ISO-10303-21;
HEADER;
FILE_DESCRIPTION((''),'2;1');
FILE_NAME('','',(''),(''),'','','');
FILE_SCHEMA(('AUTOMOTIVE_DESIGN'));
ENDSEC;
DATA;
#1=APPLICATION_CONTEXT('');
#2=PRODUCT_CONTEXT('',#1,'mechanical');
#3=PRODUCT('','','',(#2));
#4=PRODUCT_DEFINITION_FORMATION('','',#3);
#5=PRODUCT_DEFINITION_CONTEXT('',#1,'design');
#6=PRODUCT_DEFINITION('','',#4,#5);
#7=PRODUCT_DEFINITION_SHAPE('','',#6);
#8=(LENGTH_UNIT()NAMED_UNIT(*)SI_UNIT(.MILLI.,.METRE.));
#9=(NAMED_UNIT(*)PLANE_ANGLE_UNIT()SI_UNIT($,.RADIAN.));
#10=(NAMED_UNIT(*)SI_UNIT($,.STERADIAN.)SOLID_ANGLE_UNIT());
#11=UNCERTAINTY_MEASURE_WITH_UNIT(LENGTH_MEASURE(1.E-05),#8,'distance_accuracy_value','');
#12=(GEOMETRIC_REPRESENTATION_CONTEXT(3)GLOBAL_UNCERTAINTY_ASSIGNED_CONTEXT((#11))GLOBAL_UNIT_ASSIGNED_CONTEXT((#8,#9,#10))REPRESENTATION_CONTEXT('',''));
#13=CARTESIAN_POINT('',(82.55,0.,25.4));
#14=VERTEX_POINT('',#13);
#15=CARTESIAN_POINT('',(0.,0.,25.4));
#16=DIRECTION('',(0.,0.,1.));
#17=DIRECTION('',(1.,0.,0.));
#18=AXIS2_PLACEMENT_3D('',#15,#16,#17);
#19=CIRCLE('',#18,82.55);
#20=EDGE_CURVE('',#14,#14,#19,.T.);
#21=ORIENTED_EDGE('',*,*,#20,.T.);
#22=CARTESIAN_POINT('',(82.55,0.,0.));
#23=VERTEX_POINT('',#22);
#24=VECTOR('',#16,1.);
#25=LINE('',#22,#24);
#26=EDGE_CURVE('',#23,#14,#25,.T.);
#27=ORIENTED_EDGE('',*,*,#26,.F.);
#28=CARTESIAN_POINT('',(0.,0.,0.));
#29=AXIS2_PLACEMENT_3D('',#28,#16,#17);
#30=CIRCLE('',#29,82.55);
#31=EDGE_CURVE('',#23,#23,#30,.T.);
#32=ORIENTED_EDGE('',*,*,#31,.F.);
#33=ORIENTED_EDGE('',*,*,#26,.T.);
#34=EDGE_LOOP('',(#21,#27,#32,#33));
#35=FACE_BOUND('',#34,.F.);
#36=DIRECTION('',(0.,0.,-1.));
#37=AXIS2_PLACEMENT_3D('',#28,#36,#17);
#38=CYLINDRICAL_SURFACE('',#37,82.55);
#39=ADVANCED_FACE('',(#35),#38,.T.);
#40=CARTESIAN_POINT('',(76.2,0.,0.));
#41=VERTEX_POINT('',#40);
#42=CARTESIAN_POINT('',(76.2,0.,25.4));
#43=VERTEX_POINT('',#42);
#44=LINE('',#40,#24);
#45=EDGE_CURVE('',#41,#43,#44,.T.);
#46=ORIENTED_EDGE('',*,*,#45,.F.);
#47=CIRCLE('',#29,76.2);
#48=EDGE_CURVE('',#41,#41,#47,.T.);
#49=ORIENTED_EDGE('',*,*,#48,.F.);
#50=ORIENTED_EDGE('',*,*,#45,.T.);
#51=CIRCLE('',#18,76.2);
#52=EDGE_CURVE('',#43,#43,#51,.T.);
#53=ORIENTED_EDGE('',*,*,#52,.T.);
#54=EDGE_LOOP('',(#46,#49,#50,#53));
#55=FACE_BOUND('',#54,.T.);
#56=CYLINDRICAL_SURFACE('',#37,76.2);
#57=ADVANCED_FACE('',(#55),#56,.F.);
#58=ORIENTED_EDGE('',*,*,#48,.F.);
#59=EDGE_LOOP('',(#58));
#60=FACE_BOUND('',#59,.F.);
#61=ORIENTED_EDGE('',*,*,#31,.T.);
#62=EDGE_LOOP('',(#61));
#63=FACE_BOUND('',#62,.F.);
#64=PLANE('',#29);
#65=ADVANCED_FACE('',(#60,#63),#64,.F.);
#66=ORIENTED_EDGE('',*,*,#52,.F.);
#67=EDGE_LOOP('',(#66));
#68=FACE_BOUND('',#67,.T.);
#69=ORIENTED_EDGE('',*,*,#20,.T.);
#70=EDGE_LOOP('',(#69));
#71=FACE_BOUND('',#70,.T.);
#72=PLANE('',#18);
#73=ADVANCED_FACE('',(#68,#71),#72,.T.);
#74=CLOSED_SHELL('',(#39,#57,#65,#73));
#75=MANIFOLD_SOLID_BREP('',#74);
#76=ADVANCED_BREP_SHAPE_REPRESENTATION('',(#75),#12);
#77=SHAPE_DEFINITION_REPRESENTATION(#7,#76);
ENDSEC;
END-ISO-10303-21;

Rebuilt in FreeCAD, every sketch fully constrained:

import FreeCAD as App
import Part
import Sketcher

V = App.Vector
Q = App.Units.Quantity

doc = App.newDocument("Part")
body = doc.addObject("PartDesign::Body", "Body")

# Sketch on XY plane
sketch1 = doc.addObject("Sketcher::SketchObject", "Sketch")
body.addObject(sketch1)
sketch1.AttachmentSupport = (doc.XY_Plane, [""])
sketch1.MapMode = "FlatFace"
sketch1.addGeometry([
    Part.Circle(V(0, 0, 0), V(0, 0, 1), 83),
    Part.Circle(V(0, 0, 0), V(0, 0, 1), 76),
], False)
sketch1.addConstraint([
    Sketcher.Constraint("Coincident", 0, 3, -1, 1),
    Sketcher.Constraint("Coincident", 1, 3, -1, 1),
    Sketcher.Constraint("Diameter", 1, Q("6 in")),
    Sketcher.Constraint("Diameter", 0, Q("6.5 in")),
])
pad1 = doc.addObject("PartDesign::Pad", "Pad")
body.addObject(pad1)
pad1.Profile = sketch1
pad1.Length = Q("1 in")

doc.recompute()
